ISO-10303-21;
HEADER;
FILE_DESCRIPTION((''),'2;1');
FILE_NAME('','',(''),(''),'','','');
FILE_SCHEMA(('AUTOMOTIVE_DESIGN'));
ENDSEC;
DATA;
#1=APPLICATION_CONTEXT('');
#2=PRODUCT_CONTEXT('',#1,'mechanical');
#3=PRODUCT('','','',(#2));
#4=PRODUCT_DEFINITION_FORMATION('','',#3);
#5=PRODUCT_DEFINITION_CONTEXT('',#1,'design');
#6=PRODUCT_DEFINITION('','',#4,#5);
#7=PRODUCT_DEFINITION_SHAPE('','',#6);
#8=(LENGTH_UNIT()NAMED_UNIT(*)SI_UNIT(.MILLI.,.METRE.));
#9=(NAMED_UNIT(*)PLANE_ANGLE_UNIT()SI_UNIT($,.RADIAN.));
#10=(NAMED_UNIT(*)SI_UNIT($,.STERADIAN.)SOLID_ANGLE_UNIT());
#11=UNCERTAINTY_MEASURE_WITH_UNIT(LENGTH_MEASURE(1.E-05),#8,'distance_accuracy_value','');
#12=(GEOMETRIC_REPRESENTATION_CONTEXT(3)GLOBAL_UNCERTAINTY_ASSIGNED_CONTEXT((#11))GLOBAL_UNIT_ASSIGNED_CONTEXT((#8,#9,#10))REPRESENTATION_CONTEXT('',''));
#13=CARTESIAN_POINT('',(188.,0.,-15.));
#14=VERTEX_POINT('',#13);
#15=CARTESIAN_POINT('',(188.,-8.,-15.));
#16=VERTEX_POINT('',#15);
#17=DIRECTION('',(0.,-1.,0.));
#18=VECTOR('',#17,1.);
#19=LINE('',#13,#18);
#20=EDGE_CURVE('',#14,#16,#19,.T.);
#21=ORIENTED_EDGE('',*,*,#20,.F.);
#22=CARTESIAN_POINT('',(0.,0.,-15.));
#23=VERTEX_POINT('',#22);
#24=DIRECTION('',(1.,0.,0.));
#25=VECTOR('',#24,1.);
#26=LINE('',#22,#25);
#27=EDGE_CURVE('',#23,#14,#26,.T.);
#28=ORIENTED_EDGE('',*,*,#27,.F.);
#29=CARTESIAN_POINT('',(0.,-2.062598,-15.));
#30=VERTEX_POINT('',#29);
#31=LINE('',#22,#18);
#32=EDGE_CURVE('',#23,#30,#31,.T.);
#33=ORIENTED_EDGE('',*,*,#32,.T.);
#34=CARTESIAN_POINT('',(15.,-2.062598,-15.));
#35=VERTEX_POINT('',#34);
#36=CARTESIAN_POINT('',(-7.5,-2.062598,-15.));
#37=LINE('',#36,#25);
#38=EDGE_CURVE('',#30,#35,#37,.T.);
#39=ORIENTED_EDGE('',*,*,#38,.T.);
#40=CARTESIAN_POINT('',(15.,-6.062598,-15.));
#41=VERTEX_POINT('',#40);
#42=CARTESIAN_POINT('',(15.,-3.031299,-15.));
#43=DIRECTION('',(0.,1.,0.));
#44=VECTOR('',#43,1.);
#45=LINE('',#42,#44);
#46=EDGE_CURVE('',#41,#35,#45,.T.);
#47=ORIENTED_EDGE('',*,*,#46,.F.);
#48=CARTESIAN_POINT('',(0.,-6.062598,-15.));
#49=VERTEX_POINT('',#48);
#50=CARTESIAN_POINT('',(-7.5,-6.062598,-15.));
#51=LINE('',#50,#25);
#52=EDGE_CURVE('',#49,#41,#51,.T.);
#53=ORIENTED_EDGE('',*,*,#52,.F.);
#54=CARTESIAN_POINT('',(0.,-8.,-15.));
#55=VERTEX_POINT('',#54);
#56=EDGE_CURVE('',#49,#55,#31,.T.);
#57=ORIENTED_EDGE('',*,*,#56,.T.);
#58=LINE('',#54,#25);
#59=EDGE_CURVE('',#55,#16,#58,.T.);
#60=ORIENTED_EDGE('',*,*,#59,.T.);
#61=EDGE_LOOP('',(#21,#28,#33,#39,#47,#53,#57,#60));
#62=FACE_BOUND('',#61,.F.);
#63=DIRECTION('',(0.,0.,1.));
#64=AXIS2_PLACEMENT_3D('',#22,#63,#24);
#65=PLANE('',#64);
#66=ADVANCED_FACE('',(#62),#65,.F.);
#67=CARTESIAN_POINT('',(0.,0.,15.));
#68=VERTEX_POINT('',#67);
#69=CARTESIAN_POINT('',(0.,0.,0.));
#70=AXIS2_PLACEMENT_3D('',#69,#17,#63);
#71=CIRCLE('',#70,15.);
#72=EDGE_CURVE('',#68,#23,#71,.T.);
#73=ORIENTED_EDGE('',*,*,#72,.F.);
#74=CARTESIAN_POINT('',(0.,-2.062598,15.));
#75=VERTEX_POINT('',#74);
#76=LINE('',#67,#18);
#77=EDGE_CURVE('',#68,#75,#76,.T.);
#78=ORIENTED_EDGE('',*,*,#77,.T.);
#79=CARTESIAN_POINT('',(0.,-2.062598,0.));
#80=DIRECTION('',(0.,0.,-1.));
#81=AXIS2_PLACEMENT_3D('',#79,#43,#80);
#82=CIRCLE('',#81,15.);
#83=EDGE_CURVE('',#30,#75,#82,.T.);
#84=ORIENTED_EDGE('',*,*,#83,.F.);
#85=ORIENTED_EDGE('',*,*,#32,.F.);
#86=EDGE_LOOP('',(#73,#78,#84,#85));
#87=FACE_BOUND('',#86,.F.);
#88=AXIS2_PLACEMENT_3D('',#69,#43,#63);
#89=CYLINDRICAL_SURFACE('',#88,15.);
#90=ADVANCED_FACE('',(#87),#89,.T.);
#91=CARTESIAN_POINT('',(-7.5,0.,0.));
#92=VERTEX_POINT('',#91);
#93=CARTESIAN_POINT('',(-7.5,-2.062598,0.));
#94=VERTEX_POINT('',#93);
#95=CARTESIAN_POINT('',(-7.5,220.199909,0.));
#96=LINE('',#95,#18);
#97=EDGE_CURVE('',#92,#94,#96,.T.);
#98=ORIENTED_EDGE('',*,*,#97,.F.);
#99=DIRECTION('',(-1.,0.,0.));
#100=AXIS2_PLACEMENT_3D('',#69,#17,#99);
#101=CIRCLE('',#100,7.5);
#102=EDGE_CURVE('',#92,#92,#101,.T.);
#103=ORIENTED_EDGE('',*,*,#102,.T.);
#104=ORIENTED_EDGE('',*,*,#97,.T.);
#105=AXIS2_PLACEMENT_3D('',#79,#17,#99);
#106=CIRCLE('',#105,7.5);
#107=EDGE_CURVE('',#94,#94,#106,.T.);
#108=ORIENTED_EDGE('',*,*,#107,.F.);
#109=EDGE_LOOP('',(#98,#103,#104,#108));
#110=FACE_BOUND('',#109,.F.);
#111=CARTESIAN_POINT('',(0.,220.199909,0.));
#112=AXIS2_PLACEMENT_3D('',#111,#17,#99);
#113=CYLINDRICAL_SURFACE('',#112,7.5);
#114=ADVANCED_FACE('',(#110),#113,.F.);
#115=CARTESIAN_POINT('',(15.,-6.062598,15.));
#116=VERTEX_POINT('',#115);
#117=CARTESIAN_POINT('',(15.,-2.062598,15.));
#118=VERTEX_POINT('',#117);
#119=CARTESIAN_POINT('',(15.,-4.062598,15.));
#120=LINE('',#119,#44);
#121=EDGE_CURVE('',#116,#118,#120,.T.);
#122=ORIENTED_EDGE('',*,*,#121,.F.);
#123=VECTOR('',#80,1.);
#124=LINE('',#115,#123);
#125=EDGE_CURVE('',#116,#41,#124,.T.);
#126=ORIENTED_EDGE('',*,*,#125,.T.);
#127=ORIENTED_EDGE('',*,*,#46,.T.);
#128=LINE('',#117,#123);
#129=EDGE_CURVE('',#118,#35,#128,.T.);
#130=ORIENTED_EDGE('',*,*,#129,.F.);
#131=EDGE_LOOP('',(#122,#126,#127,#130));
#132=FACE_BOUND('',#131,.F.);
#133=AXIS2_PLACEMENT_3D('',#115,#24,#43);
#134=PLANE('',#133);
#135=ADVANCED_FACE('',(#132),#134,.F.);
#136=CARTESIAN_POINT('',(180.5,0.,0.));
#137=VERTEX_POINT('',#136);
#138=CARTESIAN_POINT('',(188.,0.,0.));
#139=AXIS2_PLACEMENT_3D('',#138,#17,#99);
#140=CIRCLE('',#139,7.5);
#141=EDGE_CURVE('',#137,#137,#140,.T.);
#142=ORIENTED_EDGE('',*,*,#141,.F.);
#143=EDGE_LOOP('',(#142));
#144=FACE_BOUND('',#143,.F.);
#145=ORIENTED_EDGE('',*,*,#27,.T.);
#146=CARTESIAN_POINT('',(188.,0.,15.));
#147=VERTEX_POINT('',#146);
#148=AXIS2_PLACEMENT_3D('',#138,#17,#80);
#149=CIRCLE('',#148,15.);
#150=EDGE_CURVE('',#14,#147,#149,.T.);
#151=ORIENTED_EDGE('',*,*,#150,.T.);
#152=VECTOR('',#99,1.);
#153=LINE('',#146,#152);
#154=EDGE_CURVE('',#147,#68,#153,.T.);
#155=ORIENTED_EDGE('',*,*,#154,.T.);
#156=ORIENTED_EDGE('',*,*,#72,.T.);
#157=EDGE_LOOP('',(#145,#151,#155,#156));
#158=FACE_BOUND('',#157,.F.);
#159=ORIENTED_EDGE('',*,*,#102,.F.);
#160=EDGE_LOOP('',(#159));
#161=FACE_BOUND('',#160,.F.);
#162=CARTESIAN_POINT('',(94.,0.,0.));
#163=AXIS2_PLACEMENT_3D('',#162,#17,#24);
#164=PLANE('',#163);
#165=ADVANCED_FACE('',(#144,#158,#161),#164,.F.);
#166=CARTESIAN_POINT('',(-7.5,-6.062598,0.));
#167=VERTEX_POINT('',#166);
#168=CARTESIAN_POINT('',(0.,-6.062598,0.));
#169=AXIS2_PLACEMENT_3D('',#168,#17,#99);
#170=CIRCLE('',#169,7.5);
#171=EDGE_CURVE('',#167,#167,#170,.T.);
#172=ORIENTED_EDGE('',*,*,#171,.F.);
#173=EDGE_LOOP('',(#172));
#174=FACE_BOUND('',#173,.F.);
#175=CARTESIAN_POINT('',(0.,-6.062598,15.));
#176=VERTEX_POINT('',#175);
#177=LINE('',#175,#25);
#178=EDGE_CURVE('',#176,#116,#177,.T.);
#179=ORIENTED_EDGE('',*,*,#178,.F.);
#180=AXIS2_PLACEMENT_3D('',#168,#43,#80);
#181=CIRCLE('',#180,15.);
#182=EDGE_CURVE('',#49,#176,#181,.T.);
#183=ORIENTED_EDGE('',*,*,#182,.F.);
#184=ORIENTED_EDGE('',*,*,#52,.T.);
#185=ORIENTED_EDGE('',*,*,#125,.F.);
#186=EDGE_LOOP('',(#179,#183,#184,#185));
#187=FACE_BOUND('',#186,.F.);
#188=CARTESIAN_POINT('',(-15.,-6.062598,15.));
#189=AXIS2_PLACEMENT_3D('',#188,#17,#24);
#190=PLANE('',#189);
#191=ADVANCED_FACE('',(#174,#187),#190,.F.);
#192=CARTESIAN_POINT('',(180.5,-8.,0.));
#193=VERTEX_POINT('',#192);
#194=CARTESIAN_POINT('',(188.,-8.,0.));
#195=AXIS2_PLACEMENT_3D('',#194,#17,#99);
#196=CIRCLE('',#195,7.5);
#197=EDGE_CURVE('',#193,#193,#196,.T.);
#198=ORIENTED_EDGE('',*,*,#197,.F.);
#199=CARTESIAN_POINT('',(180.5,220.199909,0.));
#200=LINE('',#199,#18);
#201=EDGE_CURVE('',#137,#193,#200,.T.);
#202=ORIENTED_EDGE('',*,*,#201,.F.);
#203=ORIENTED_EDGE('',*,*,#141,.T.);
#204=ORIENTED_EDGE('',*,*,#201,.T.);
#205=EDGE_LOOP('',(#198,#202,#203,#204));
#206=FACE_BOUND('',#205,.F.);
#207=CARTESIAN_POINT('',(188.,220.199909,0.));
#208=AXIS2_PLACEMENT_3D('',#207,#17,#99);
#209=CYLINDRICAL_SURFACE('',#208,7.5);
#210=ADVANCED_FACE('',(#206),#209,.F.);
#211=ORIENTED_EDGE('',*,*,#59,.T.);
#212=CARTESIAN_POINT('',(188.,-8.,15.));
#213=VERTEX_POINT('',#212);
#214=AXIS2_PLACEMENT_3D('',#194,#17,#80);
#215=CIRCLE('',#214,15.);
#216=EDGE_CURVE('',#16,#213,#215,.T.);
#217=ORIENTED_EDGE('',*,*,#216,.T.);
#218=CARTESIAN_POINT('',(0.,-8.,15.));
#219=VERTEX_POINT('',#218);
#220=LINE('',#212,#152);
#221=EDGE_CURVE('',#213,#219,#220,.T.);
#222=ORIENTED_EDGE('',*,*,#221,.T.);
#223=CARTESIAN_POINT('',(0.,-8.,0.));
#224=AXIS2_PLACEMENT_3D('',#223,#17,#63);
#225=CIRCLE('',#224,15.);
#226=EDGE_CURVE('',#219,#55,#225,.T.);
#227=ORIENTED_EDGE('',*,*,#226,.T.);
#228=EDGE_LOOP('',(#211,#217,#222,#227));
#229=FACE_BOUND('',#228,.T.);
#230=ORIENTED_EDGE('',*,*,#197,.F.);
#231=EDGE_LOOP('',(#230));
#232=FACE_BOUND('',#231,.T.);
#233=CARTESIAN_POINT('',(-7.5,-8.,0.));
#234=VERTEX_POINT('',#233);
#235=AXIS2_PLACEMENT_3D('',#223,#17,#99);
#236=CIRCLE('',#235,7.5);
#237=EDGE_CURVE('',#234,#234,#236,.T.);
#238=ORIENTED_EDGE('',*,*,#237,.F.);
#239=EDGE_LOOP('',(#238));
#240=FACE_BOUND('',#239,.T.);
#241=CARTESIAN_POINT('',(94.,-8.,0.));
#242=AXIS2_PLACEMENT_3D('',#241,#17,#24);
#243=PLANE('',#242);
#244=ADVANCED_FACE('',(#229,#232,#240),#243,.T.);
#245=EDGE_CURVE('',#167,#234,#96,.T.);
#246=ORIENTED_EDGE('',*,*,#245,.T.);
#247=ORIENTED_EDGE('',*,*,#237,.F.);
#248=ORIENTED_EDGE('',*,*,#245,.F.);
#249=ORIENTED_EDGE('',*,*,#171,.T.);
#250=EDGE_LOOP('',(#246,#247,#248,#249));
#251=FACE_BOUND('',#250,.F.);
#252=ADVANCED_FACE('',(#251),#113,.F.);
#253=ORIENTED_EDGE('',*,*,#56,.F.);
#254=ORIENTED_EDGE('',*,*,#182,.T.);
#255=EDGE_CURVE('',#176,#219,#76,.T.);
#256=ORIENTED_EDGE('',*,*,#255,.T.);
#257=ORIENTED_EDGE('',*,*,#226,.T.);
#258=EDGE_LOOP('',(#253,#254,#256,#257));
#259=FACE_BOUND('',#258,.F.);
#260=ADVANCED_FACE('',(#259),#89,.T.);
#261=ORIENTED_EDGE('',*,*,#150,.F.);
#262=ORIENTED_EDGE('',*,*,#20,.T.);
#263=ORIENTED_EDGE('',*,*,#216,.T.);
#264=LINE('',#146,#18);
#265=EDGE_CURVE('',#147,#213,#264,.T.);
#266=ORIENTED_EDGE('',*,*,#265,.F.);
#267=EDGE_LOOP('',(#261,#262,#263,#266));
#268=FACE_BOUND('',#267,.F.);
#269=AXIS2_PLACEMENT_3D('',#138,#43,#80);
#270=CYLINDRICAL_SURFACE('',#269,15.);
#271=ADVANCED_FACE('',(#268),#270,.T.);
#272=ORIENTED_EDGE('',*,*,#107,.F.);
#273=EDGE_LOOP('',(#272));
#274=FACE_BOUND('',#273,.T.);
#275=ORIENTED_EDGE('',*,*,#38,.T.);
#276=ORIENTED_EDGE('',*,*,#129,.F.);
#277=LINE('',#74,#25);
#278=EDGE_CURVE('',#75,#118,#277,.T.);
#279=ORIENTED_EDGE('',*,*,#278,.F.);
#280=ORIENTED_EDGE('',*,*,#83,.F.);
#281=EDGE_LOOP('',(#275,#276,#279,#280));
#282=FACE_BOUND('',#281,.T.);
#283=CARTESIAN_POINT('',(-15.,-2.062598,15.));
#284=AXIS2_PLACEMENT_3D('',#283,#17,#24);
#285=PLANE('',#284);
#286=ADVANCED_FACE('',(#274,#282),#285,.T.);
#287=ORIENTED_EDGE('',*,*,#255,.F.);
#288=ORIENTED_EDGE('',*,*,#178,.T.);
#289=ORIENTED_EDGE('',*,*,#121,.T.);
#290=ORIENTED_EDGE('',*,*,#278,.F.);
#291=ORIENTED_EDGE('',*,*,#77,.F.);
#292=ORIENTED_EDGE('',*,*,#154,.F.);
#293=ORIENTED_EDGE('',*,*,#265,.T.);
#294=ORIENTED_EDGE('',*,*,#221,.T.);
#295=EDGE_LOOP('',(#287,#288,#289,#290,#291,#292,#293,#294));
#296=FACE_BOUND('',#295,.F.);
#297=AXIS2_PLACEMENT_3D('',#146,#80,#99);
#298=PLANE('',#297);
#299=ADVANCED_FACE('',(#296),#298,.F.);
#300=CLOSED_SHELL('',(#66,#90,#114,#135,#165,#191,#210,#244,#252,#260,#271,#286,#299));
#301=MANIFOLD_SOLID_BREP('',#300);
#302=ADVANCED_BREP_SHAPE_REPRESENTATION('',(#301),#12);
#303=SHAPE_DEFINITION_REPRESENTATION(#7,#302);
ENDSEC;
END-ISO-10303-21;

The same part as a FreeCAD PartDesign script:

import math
import FreeCAD as App
import Part
import Sketcher
from FreeCAD import Vector

doc = App.newDocument("Part")
body = doc.addObject("PartDesign::Body", "Body")

sketch1 = body.newObject("Sketcher::SketchObject", "Sketch")
sketch1.AttachmentSupport = (doc.getObject("XZ_Plane"), [""])
sketch1.MapMode = "FlatFace"
sketch1.addGeometry([
    Part.LineSegment(Vector(188, 15, 0), Vector(0, 15, 0)),
    Part.ArcOfCircle(Part.Circle(Vector(0, 0, 0), Vector(0, 0, 1), 15), math.radians(90), math.radians(270)),
    Part.LineSegment(Vector(0, -15, 0), Vector(188, -15, 0)),
    Part.ArcOfCircle(Part.Circle(Vector(188, 0, 0), Vector(0, 0, 1), 15), math.radians(-90), math.radians(90)),
], False)
sketch1.addConstraint([
    Sketcher.Constraint("Tangent", 0, 2, 1, 1),
    Sketcher.Constraint("Tangent", 1, 2, 2, 1),
    Sketcher.Constraint("Tangent", 2, 2, 3, 1),
    Sketcher.Constraint("Tangent", 3, 2, 0, 1),
    Sketcher.Constraint("Horizontal", 0),
    Sketcher.Constraint("Horizontal", 2),
    Sketcher.Constraint("Coincident", 1, 3, -1, 1),
    Sketcher.Constraint("Radius", 1, 15.0),
    Sketcher.Constraint("DistanceX", 0, 2, 0, 1, 188.0),
])
pad1 = body.newObject("PartDesign::Pad", "Pad")
pad1.Profile = sketch1
pad1.Length = 8

sketch2 = body.newObject("Sketcher::SketchObject", "Sketch001")
sketch2.AttachmentSupport = (doc.getObject("XZ_Plane"), [""])
sketch2.MapMode = "FlatFace"
sketch2.addGeometry(Part.Circle(Vector(0, 0, 0), Vector(0, 0, 1), 8), False)
sketch2.addConstraint([
    Sketcher.Constraint("Coincident", 0, 3, -1, 1),
    Sketcher.Constraint("Diameter", 0, 15.0),
])
doc.recompute()
hole = body.newObject("PartDesign::Hole", "Hole")
hole.Profile = sketch2
hole.ThreadType = "None"
hole.Diameter = 15
hole.DepthType = "ThroughAll"
hole.Reversed = True

sketch3 = body.newObject("Sketcher::SketchObject", "Sketch002")
sketch3.AttachmentSupport = (doc.getObject("XZ_Plane"), [""])
sketch3.MapMode = "FlatFace"
sketch3.addGeometry(Part.Circle(Vector(188, 0, 0), Vector(0, 0, 1), 8), False)
sketch3.addConstraint([
    Sketcher.Constraint("PointOnObject", 0, 3, -1),
    Sketcher.Constraint("Diameter", 0, 15.0),
    Sketcher.Constraint("DistanceX", -1, 1, 0, 3, 188.0),
])
doc.recompute()
hole2 = body.newObject("PartDesign::Hole", "Hole001")
hole2.Profile = sketch3
hole2.ThreadType = "None"
hole2.Diameter = 15
hole2.DepthType = "ThroughAll"
hole2.Reversed = True

sketch4 = body.newObject("Sketcher::SketchObject", "Sketch003")
sketch4.AttachmentSupport = (doc.getObject("XY_Plane"), [""])
sketch4.MapMode = "FlatFace"
sketch4.AttachmentOffset = App.Placement(Vector(0, 0, 15), App.Rotation())
sketch4.addGeometry([
    Part.LineSegment(Vector(-15, -2.1, 0), Vector(-15, -6.1, 0)),
    Part.LineSegment(Vector(-15, -6.1, 0), Vector(15, -6.1, 0)),
    Part.LineSegment(Vector(15, -6.1, 0), Vector(15, -2.1, 0)),
    Part.LineSegment(Vector(15, -2.1, 0), Vector(-15, -2.1, 0)),
], False)
sketch4.addConstraint([
    Sketcher.Constraint("Coincident", 0, 2, 1, 1),
    Sketcher.Constraint("Coincident", 1, 2, 2, 1),
    Sketcher.Constraint("Coincident", 2, 2, 3, 1),
    Sketcher.Constraint("Coincident", 3, 2, 0, 1),
    Sketcher.Constraint("Vertical", 0),
    Sketcher.Constraint("Horizontal", 1),
    Sketcher.Constraint("Vertical", 2),
    Sketcher.Constraint("Horizontal", 3),
    Sketcher.Constraint("DistanceX", 1, 1, 1, 2, 30.0),
    Sketcher.Constraint("DistanceY", 0, 2, 0, 1, 4.0),
    Sketcher.Constraint("DistanceX", 0, 2, -1, 1, 15.0),
    Sketcher.Constraint("DistanceY", 0, 2, -1, 1, 6.062598),
])
pocket1 = body.newObject("PartDesign::Pocket", "Pocket")
pocket1.Profile = sketch4
pocket1.Type = "ThroughAll"

doc.recompute()
